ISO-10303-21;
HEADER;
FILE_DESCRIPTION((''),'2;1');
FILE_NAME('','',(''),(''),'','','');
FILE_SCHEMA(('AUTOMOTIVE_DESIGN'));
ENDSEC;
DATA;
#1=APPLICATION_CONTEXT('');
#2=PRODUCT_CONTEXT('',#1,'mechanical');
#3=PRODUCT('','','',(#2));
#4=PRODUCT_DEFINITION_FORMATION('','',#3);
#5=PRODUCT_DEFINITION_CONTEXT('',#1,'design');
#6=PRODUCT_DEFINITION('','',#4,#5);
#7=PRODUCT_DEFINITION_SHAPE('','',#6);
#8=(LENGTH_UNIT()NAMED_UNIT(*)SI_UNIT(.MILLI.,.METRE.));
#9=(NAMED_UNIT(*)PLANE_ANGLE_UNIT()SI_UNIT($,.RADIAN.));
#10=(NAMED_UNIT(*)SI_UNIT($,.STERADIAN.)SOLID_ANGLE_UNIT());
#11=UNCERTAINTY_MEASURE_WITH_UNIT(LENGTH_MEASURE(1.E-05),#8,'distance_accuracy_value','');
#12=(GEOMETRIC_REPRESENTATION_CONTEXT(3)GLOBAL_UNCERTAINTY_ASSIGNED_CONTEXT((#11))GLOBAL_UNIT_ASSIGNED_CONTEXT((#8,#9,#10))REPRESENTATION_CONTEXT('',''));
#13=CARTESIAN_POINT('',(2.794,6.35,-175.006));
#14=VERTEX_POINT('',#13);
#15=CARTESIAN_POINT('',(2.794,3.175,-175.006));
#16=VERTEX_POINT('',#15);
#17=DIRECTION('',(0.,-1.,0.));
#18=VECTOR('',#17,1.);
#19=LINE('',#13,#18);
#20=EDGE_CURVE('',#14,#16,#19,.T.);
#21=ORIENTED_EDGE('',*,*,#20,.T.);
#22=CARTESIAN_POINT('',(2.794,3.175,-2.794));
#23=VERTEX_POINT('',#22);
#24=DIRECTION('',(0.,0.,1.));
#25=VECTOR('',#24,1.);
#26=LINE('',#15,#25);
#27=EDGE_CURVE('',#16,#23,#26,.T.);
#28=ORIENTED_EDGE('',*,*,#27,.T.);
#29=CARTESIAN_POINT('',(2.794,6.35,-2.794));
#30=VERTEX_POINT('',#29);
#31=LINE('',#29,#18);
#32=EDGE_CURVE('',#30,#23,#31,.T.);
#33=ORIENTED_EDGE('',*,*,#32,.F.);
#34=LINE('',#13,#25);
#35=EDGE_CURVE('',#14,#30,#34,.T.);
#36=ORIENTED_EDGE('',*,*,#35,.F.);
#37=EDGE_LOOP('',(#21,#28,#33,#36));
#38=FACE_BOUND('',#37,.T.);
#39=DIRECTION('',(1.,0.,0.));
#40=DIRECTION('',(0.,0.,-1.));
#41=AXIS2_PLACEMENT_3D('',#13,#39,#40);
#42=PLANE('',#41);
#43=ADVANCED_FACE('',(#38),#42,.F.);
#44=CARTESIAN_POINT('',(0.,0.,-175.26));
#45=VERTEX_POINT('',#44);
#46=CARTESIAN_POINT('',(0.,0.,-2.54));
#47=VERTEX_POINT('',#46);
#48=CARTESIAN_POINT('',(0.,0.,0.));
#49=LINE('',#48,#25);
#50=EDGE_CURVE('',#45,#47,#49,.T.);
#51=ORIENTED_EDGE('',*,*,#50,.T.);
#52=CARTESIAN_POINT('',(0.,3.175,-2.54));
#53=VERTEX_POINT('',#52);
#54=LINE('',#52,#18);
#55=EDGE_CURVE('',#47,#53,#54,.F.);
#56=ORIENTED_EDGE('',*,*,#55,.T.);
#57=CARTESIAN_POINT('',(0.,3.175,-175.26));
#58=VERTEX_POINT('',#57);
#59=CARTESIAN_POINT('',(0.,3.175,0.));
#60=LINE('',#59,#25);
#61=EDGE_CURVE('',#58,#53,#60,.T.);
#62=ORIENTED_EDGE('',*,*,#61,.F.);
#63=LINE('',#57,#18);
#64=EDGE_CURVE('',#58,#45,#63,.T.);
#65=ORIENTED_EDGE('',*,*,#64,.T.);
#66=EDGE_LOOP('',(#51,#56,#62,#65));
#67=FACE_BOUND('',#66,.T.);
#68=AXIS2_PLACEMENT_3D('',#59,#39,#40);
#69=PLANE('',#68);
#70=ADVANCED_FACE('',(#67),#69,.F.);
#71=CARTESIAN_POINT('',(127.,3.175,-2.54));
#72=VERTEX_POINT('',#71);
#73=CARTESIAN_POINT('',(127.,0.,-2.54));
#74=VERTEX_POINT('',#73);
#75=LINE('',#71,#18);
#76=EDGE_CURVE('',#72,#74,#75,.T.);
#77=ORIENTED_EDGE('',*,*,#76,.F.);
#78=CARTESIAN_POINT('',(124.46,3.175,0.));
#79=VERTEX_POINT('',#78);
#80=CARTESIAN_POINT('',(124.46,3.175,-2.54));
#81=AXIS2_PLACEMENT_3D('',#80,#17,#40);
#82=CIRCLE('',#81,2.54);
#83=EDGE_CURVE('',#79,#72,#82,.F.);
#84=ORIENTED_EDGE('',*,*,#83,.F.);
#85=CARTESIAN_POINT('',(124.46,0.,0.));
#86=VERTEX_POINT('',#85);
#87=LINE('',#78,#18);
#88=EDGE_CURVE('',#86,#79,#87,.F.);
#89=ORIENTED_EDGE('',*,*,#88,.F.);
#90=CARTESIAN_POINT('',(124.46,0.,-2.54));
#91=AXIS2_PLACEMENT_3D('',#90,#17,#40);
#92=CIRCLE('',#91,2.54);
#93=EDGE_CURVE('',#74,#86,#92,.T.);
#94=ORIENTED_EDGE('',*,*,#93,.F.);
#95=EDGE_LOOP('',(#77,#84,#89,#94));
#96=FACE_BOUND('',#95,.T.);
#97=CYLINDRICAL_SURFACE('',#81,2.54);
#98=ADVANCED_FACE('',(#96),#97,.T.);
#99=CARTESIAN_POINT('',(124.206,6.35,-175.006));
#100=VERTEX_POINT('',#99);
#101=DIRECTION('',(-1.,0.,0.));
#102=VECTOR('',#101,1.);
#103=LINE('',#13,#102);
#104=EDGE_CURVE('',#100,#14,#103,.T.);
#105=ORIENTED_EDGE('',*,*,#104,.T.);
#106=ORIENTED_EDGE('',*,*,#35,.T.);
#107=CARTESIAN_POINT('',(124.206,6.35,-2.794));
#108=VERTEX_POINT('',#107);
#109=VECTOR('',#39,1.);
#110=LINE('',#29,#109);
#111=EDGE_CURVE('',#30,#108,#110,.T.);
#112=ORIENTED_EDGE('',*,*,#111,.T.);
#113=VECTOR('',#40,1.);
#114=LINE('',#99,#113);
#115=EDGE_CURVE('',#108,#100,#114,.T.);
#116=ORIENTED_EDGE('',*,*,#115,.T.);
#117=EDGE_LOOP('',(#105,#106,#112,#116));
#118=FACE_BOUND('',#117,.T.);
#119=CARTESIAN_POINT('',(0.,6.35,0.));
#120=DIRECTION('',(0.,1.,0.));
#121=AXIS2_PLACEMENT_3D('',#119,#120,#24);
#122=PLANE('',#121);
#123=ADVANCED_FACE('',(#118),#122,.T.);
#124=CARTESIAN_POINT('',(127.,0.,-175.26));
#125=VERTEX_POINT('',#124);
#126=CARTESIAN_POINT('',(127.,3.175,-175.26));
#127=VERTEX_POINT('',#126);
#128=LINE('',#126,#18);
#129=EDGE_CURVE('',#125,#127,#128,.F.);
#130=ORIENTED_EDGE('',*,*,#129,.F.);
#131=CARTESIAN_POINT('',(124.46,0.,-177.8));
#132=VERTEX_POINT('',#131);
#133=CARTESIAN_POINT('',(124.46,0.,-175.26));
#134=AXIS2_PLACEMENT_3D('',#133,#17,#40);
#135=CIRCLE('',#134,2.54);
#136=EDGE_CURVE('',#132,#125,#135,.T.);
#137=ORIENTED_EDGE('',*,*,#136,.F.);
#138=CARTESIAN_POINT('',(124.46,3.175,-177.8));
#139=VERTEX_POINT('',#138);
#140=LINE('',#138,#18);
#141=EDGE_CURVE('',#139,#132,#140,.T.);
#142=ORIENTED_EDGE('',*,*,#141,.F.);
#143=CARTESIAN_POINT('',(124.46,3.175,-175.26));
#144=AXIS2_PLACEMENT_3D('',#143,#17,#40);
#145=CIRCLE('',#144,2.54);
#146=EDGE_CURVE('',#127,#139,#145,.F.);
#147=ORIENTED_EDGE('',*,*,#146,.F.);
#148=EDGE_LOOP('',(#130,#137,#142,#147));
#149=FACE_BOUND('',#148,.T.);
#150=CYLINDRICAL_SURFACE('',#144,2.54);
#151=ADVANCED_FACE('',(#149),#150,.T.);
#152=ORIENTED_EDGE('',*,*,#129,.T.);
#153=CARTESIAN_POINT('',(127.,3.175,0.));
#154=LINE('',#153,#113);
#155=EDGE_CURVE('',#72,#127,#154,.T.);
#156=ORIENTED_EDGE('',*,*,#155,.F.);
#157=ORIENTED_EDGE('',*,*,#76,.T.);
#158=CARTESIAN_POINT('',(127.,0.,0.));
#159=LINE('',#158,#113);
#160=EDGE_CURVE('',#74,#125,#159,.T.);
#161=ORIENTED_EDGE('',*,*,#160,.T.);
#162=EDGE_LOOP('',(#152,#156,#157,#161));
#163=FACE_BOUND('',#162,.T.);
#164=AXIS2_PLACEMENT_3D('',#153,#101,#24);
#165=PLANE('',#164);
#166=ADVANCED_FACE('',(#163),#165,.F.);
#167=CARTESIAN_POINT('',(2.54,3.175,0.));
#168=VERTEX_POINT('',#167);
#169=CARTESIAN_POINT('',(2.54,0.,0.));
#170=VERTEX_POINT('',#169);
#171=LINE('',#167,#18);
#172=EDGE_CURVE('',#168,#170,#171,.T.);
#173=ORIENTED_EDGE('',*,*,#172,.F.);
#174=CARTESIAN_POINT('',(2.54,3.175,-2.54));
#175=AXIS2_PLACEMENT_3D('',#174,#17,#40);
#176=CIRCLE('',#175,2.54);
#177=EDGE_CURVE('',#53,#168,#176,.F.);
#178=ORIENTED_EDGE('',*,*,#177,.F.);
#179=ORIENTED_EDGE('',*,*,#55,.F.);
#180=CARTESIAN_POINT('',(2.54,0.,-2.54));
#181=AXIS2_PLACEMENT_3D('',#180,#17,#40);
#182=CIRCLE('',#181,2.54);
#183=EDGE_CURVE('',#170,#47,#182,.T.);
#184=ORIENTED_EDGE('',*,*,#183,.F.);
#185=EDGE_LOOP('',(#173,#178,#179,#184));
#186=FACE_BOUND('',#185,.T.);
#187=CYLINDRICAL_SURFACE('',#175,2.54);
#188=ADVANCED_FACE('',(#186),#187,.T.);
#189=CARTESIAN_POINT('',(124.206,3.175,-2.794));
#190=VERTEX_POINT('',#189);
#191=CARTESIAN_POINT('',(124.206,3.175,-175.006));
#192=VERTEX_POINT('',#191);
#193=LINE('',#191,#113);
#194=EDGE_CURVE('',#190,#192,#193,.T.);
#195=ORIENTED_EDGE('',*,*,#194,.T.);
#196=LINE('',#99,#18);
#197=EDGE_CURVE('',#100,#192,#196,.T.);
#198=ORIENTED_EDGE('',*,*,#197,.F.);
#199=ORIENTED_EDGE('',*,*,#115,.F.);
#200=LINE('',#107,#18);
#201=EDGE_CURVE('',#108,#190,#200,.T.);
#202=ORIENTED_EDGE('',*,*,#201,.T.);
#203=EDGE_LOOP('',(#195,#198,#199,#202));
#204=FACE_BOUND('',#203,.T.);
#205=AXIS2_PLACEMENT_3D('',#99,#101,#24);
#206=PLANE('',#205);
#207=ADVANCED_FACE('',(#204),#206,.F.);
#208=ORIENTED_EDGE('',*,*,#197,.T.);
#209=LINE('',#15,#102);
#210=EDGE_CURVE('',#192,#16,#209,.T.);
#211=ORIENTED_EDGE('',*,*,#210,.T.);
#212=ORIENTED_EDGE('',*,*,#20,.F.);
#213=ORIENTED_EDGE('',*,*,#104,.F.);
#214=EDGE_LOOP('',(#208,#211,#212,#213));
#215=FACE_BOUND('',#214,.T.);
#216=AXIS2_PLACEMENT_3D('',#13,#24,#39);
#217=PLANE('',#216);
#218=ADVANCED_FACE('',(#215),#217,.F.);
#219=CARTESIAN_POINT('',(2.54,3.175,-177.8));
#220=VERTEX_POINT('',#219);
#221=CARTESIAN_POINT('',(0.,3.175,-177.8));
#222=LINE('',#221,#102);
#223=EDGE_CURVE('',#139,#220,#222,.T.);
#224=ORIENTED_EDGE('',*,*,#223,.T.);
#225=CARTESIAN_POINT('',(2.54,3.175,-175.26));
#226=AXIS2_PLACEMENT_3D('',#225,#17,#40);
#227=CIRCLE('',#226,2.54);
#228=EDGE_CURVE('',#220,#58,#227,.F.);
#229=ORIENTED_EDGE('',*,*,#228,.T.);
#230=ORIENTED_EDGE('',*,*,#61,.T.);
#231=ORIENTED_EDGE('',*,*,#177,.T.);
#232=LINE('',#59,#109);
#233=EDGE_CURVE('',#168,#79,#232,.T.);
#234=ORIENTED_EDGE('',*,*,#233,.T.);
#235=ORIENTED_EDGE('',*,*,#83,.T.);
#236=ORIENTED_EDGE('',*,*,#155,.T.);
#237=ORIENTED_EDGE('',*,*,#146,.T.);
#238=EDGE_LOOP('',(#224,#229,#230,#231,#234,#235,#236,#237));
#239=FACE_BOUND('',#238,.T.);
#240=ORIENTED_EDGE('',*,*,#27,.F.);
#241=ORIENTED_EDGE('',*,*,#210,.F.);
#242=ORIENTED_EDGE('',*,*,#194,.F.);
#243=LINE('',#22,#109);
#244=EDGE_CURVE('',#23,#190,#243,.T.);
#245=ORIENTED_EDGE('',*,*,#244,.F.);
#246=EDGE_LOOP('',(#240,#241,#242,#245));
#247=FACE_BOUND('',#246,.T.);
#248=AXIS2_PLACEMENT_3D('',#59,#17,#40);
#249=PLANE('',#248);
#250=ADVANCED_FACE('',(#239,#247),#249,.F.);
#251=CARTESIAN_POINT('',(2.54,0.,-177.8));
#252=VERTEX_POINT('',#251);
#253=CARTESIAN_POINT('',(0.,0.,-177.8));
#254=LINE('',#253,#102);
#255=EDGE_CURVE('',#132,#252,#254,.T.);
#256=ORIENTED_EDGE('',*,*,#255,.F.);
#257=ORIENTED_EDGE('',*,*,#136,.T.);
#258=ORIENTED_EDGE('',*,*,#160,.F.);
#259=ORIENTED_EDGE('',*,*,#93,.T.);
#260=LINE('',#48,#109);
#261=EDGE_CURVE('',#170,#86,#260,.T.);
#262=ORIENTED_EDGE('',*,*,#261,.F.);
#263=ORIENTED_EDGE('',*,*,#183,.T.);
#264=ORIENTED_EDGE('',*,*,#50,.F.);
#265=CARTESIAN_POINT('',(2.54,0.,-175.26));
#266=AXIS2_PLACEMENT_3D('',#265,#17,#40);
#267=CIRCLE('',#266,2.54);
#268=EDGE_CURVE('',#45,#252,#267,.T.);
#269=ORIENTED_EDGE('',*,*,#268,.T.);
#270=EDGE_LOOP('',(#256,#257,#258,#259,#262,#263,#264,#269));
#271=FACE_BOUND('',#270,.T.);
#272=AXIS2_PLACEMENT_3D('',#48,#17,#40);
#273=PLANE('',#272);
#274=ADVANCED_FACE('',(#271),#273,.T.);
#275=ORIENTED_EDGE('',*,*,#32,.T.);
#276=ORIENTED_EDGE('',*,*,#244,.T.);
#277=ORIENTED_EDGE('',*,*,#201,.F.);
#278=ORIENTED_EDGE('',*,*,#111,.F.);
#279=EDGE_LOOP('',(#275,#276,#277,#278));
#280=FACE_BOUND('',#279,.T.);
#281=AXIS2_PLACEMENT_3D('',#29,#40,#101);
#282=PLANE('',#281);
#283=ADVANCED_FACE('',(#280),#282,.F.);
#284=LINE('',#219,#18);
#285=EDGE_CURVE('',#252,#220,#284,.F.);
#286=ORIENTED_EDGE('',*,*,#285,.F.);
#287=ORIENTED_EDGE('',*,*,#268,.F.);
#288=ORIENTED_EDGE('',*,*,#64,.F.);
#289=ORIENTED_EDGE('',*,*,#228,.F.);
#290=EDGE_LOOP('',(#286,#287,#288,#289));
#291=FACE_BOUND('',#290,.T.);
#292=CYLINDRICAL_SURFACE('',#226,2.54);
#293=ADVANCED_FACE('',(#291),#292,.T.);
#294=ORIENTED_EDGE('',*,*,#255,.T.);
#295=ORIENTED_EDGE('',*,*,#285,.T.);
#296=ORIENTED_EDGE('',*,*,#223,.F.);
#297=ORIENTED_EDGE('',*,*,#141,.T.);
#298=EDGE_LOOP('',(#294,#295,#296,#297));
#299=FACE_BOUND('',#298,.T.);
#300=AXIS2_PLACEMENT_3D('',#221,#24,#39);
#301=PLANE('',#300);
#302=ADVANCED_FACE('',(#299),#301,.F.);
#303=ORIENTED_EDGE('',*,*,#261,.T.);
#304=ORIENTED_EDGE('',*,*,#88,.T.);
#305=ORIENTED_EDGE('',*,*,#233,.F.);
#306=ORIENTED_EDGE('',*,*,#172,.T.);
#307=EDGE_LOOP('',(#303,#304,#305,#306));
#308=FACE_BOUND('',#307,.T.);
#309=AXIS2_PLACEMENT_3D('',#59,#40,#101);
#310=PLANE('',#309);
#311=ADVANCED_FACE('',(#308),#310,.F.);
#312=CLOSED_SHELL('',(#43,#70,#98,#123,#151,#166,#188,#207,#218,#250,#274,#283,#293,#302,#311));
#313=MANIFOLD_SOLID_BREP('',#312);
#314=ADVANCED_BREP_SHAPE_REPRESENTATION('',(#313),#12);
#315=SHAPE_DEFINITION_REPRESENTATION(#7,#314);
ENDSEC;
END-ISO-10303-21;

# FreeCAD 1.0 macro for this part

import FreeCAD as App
import Part
import Sketcher

V = App.Vector
Q = App.Units.Quantity


def edges_at(feature, points):
    """Names of the edges that pass closest to the given points."""
    edges = feature.Shape.Edges
    near = lambda p: min(range(len(edges)), key=lambda i: edges[i].distToShape(Part.Vertex(*p))[0])
    return sorted({f"Edge{near(p) + 1}" for p in points})

doc = App.newDocument("Part")
body = doc.addObject("PartDesign::Body", "Body")

sketch1 = body.newObject("Sketcher::SketchObject", "Sketch")
sketch1.AttachmentSupport = (doc.getObject("XZ_Plane"), [""])
sketch1.MapMode = "FlatFace"
sketch1.addGeometry(Part.LineSegment(V(0, -178, 0), V(0, 0, 0)), False)
sketch1.addGeometry(Part.LineSegment(V(0, 0, 0), V(127, 0, 0)), False)
sketch1.addGeometry(Part.LineSegment(V(127, 0, 0), V(127, -178, 0)), False)
sketch1.addGeometry(Part.LineSegment(V(127, -178, 0), V(0, -178, 0)), False)
sketch1.addConstraint(Sketcher.Constraint("Coincident", 0, 2, 1, 1))
sketch1.addConstraint(Sketcher.Constraint("Coincident", 1, 2, 2, 1))
sketch1.addConstraint(Sketcher.Constraint("Coincident", 2, 2, 3, 1))
sketch1.addConstraint(Sketcher.Constraint("Coincident", 3, 2, 0, 1))
sketch1.addConstraint(Sketcher.Constraint("Vertical", 0))
sketch1.addConstraint(Sketcher.Constraint("Horizontal", 1))
sketch1.addConstraint(Sketcher.Constraint("Vertical", 2))
sketch1.addConstraint(Sketcher.Constraint("Horizontal", 3))
sketch1.addConstraint(Sketcher.Constraint("Coincident", 0, 2, -1, 1))
sketch1.addConstraint(Sketcher.Constraint("DistanceX", 1, 1, 1, 2, Q("5 in")))
sketch1.addConstraint(Sketcher.Constraint("DistanceY", 0, 1, 0, 2, Q("7 in")))
pad1 = body.newObject("PartDesign::Pad", "Pad")
pad1.Profile = sketch1
pad1.Length = Q("0.125 in")
pad1.Reversed = True
doc.recompute()

fillet = body.newObject("PartDesign::Fillet", "Fillet")
fillet.Base = (pad1, edges_at(pad1, [
    (0, 1.587, -177.8),
    (127, 1.587, -177.8),
    (127, 1.587, 0),
    (0, 1.587, 0),
]))
fillet.Radius = Q("0.1 in")

sketch2 = body.newObject("Sketcher::SketchObject", "Sketch001")
sketch2.AttachmentSupport = (doc.getObject("XZ_Plane"), [""])
sketch2.MapMode = "FlatFace"
sketch2.AttachmentOffset = App.Placement(V(0, 0, -0.125 * 25.4), App.Rotation())
sketch2.addGeometry(Part.LineSegment(V(3, -175, 0), V(3, -3, 0)), False)
sketch2.addGeometry(Part.LineSegment(V(3, -3, 0), V(124, -3, 0)), False)
sketch2.addGeometry(Part.LineSegment(V(124, -3, 0), V(124, -175, 0)), False)
sketch2.addGeometry(Part.LineSegment(V(124, -175, 0), V(3, -175, 0)), False)
sketch2.addConstraint(Sketcher.Constraint("Coincident", 0, 2, 1, 1))
sketch2.addConstraint(Sketcher.Constraint("Coincident", 1, 2, 2, 1))
sketch2.addConstraint(Sketcher.Constraint("Coincident", 2, 2, 3, 1))
sketch2.addConstraint(Sketcher.Constraint("Coincident", 3, 2, 0, 1))
sketch2.addConstraint(Sketcher.Constraint("Vertical", 0))
sketch2.addConstraint(Sketcher.Constraint("Horizontal", 1))
sketch2.addConstraint(Sketcher.Constraint("Vertical", 2))
sketch2.addConstraint(Sketcher.Constraint("Horizontal", 3))
sketch2.addConstraint(Sketcher.Constraint("DistanceX", 1, 1, 1, 2, Q("4.78 in")))
sketch2.addConstraint(Sketcher.Constraint("DistanceY", 0, 1, 0, 2, Q("6.78 in")))
sketch2.addConstraint(Sketcher.Constraint("DistanceX", -1, 1, 0, 2, Q("0.11 in")))
sketch2.addConstraint(Sketcher.Constraint("DistanceY", 0, 2, -1, 1, Q("0.11 in")))
pad2 = body.newObject("PartDesign::Pad", "Pad001")
pad2.Profile = sketch2
pad2.Length = Q("0.125 in")
pad2.Reversed = True

doc.recompute()
